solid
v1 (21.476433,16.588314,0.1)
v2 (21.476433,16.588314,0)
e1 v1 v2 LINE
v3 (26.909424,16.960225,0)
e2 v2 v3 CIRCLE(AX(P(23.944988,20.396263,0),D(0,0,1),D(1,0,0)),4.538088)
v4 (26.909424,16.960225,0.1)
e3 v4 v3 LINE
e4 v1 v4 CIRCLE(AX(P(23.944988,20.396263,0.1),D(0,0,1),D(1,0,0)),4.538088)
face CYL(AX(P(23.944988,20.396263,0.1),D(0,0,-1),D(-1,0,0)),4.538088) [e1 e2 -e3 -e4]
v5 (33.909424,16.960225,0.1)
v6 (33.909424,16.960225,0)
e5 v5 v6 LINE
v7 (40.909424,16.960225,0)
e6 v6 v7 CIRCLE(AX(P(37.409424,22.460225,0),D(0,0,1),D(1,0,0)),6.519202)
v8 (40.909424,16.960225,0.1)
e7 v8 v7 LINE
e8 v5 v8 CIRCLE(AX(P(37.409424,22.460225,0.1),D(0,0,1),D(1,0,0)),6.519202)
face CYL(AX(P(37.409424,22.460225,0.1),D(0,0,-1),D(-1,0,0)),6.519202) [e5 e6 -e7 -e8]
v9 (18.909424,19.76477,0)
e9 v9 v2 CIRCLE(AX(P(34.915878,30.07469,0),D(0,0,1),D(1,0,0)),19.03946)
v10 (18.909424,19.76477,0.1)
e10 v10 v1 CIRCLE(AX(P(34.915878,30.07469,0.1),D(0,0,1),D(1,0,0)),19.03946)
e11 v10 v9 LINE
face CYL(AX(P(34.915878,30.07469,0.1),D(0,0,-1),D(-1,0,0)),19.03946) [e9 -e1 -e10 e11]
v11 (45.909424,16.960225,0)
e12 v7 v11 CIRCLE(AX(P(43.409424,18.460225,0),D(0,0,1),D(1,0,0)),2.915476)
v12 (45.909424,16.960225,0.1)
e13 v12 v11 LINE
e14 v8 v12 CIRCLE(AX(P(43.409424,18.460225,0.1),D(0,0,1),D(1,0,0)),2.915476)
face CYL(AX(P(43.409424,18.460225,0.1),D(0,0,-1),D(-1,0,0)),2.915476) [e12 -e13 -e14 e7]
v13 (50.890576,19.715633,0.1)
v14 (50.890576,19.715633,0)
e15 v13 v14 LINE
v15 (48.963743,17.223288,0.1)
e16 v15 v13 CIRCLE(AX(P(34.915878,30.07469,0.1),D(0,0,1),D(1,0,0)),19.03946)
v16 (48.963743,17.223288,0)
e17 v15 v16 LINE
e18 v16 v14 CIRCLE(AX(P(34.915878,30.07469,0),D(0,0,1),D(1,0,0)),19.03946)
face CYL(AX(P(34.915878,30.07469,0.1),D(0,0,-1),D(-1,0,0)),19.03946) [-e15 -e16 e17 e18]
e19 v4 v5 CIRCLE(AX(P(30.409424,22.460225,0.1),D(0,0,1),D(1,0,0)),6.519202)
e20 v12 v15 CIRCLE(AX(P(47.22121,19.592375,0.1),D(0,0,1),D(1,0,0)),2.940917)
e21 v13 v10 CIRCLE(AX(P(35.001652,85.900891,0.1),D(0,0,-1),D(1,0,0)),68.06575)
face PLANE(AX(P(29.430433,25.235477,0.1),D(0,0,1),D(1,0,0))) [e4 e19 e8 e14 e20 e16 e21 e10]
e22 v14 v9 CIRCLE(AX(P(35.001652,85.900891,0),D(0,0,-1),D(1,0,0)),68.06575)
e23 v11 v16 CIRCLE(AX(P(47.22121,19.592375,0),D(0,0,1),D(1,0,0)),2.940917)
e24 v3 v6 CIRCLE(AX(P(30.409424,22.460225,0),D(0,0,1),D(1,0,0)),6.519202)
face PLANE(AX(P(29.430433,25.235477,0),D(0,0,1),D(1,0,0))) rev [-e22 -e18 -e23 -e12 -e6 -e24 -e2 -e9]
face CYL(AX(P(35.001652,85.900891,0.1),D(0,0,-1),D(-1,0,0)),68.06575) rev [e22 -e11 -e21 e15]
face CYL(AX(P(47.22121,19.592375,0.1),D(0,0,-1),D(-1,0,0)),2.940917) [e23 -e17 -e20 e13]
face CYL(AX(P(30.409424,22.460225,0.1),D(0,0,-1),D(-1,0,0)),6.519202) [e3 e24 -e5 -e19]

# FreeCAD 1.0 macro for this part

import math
import FreeCAD as App
import Part
import Sketcher

V = App.Vector

doc = App.newDocument("Part")
body = doc.addObject("PartDesign::Body", "Body")

# Sketch on XY plane
sketch1 = body.newObject("Sketcher::SketchObject", "Sketch")
sketch1.AttachmentSupport = (doc.getObject("XY_Plane"), [""])
sketch1.MapMode = "FlatFace"
sketch1.addGeometry(Part.ArcOfCircle(Part.Circle(V(23.9, 20.4, 0), V(0, 0, 1), 4.5), math.radians(-123), math.radians(-49)), False)
sketch1.addGeometry(Part.ArcOfCircle(Part.Circle(V(30.4, 22.5, 0), V(0, 0, 1), 6.5), math.radians(-122), math.radians(-58)), False)
sketch1.addGeometry(Part.ArcOfCircle(Part.Circle(V(37.4, 22.5, 0), V(0, 0, 1), 6.5), math.radians(-122), math.radians(-58)), False)
sketch1.addGeometry(Part.ArcOfCircle(Part.Circle(V(43.4, 18.5, 0), V(0, 0, 1), 2.9), math.radians(-149), math.radians(-31)), False)
sketch1.addGeometry(Part.ArcOfCircle(Part.Circle(V(47.2, 19.6, 0), V(0, 0, 1), 2.9), math.radians(-116), math.radians(-54)), False)
sketch1.addGeometry(Part.ArcOfCircle(Part.Circle(V(34.9, 30.1, 0), V(0, 0, 1), 19), math.radians(-42.45), math.radians(-32.96)), False)
sketch1.addGeometry(Part.ArcOfCircle(Part.Circle(V(35, 85.9, 0), V(0, 0, 1), 68.1), math.radians(-104), math.radians(-77)), False)
sketch1.addGeometry(Part.ArcOfCircle(Part.Circle(V(34.9, 30.1, 0), V(0, 0, 1), 19), math.radians(-147.21), math.radians(-134.9)), False)
sketch1.addConstraint(Sketcher.Constraint("Coincident", 0, 2, 1, 1))
sketch1.addConstraint(Sketcher.Constraint("Coincident", 1, 2, 2, 1))
sketch1.addConstraint(Sketcher.Constraint("Coincident", 2, 2, 3, 1))
sketch1.addConstraint(Sketcher.Constraint("Coincident", 3, 2, 4, 1))
sketch1.addConstraint(Sketcher.Constraint("Coincident", 4, 2, 5, 1))
sketch1.addConstraint(Sketcher.Constraint("Coincident", 5, 2, 6, 2))
sketch1.addConstraint(Sketcher.Constraint("Coincident", 6, 1, 7, 1))
sketch1.addConstraint(Sketcher.Constraint("Coincident", 7, 2, 0, 1))
sketch1.addConstraint(Sketcher.Constraint("Coincident", 7, 3, 5, 3))
sketch1.addConstraint(Sketcher.Constraint("Equal", 1, 2))
sketch1.addConstraint(Sketcher.Constraint("Equal", 5, 7))
sketch1.addConstraint(Sketcher.Constraint("Horizontal", 1, 3, 2, 3))
sketch1.addConstraint(Sketcher.Constraint("Horizontal", 0, 2, 1, 2))
sketch1.addConstraint(Sketcher.Constraint("Horizontal", 1, 2, 2, 2))
sketch1.addConstraint(Sketcher.Constraint("Horizontal", 2, 2, 3, 2))
sketch1.addConstraint(Sketcher.Constraint("DistanceX", 1, 3, 2, 3, 7.0))
sketch1.addConstraint(Sketcher.Constraint("DistanceX", 2, 3, 3, 3, 6.0))
sketch1.addConstraint(Sketcher.Constraint("DistanceY", 3, 3, 2, 3, 4.0))
sketch1.addConstraint(Sketcher.Constraint("DistanceX", 6, 1, 0, 2, 8.0))
sketch1.addConstraint(Sketcher.Constraint("DistanceY", 0, 2, 1, 3, 5.5))
sketch1.addConstraint(Sketcher.Constraint("Radius", 5, 19.03946))
sketch1.addConstraint(Sketcher.Constraint("Radius", 6, 68.06575))
sketch1.addConstraint(Sketcher.Constraint("Radius", 0, 4.538088))
sketch1.addConstraint(Sketcher.Constraint("Radius", 4, 2.940917))
sketch1.addConstraint(Sketcher.Constraint("DistanceY", 5, 3, 6, 3, 55.826201))
sketch1.addConstraint(Sketcher.Constraint("DistanceX", -1, 1, 4, 3, 47.22121))
sketch1.addConstraint(Sketcher.Constraint("DistanceX", -1, 1, 5, 3, 34.915878))
sketch1.addConstraint(Sketcher.Constraint("DistanceY", -1, 1, 5, 3, 30.07469))
sketch1.addConstraint(Sketcher.Constraint("DistanceX", -1, 1, 6, 3, 35.001652))
sketch1.addConstraint(Sketcher.Constraint("DistanceY", -1, 1, 4, 2, 17.223288))
sketch1.addConstraint(Sketcher.Constraint("DistanceY", 0, 3, 1, 3, 2.063962))
pad1 = body.newObject("PartDesign::Pad", "Pad")
pad1.Profile = sketch1
pad1.Length = 0.1

doc.recompute()
